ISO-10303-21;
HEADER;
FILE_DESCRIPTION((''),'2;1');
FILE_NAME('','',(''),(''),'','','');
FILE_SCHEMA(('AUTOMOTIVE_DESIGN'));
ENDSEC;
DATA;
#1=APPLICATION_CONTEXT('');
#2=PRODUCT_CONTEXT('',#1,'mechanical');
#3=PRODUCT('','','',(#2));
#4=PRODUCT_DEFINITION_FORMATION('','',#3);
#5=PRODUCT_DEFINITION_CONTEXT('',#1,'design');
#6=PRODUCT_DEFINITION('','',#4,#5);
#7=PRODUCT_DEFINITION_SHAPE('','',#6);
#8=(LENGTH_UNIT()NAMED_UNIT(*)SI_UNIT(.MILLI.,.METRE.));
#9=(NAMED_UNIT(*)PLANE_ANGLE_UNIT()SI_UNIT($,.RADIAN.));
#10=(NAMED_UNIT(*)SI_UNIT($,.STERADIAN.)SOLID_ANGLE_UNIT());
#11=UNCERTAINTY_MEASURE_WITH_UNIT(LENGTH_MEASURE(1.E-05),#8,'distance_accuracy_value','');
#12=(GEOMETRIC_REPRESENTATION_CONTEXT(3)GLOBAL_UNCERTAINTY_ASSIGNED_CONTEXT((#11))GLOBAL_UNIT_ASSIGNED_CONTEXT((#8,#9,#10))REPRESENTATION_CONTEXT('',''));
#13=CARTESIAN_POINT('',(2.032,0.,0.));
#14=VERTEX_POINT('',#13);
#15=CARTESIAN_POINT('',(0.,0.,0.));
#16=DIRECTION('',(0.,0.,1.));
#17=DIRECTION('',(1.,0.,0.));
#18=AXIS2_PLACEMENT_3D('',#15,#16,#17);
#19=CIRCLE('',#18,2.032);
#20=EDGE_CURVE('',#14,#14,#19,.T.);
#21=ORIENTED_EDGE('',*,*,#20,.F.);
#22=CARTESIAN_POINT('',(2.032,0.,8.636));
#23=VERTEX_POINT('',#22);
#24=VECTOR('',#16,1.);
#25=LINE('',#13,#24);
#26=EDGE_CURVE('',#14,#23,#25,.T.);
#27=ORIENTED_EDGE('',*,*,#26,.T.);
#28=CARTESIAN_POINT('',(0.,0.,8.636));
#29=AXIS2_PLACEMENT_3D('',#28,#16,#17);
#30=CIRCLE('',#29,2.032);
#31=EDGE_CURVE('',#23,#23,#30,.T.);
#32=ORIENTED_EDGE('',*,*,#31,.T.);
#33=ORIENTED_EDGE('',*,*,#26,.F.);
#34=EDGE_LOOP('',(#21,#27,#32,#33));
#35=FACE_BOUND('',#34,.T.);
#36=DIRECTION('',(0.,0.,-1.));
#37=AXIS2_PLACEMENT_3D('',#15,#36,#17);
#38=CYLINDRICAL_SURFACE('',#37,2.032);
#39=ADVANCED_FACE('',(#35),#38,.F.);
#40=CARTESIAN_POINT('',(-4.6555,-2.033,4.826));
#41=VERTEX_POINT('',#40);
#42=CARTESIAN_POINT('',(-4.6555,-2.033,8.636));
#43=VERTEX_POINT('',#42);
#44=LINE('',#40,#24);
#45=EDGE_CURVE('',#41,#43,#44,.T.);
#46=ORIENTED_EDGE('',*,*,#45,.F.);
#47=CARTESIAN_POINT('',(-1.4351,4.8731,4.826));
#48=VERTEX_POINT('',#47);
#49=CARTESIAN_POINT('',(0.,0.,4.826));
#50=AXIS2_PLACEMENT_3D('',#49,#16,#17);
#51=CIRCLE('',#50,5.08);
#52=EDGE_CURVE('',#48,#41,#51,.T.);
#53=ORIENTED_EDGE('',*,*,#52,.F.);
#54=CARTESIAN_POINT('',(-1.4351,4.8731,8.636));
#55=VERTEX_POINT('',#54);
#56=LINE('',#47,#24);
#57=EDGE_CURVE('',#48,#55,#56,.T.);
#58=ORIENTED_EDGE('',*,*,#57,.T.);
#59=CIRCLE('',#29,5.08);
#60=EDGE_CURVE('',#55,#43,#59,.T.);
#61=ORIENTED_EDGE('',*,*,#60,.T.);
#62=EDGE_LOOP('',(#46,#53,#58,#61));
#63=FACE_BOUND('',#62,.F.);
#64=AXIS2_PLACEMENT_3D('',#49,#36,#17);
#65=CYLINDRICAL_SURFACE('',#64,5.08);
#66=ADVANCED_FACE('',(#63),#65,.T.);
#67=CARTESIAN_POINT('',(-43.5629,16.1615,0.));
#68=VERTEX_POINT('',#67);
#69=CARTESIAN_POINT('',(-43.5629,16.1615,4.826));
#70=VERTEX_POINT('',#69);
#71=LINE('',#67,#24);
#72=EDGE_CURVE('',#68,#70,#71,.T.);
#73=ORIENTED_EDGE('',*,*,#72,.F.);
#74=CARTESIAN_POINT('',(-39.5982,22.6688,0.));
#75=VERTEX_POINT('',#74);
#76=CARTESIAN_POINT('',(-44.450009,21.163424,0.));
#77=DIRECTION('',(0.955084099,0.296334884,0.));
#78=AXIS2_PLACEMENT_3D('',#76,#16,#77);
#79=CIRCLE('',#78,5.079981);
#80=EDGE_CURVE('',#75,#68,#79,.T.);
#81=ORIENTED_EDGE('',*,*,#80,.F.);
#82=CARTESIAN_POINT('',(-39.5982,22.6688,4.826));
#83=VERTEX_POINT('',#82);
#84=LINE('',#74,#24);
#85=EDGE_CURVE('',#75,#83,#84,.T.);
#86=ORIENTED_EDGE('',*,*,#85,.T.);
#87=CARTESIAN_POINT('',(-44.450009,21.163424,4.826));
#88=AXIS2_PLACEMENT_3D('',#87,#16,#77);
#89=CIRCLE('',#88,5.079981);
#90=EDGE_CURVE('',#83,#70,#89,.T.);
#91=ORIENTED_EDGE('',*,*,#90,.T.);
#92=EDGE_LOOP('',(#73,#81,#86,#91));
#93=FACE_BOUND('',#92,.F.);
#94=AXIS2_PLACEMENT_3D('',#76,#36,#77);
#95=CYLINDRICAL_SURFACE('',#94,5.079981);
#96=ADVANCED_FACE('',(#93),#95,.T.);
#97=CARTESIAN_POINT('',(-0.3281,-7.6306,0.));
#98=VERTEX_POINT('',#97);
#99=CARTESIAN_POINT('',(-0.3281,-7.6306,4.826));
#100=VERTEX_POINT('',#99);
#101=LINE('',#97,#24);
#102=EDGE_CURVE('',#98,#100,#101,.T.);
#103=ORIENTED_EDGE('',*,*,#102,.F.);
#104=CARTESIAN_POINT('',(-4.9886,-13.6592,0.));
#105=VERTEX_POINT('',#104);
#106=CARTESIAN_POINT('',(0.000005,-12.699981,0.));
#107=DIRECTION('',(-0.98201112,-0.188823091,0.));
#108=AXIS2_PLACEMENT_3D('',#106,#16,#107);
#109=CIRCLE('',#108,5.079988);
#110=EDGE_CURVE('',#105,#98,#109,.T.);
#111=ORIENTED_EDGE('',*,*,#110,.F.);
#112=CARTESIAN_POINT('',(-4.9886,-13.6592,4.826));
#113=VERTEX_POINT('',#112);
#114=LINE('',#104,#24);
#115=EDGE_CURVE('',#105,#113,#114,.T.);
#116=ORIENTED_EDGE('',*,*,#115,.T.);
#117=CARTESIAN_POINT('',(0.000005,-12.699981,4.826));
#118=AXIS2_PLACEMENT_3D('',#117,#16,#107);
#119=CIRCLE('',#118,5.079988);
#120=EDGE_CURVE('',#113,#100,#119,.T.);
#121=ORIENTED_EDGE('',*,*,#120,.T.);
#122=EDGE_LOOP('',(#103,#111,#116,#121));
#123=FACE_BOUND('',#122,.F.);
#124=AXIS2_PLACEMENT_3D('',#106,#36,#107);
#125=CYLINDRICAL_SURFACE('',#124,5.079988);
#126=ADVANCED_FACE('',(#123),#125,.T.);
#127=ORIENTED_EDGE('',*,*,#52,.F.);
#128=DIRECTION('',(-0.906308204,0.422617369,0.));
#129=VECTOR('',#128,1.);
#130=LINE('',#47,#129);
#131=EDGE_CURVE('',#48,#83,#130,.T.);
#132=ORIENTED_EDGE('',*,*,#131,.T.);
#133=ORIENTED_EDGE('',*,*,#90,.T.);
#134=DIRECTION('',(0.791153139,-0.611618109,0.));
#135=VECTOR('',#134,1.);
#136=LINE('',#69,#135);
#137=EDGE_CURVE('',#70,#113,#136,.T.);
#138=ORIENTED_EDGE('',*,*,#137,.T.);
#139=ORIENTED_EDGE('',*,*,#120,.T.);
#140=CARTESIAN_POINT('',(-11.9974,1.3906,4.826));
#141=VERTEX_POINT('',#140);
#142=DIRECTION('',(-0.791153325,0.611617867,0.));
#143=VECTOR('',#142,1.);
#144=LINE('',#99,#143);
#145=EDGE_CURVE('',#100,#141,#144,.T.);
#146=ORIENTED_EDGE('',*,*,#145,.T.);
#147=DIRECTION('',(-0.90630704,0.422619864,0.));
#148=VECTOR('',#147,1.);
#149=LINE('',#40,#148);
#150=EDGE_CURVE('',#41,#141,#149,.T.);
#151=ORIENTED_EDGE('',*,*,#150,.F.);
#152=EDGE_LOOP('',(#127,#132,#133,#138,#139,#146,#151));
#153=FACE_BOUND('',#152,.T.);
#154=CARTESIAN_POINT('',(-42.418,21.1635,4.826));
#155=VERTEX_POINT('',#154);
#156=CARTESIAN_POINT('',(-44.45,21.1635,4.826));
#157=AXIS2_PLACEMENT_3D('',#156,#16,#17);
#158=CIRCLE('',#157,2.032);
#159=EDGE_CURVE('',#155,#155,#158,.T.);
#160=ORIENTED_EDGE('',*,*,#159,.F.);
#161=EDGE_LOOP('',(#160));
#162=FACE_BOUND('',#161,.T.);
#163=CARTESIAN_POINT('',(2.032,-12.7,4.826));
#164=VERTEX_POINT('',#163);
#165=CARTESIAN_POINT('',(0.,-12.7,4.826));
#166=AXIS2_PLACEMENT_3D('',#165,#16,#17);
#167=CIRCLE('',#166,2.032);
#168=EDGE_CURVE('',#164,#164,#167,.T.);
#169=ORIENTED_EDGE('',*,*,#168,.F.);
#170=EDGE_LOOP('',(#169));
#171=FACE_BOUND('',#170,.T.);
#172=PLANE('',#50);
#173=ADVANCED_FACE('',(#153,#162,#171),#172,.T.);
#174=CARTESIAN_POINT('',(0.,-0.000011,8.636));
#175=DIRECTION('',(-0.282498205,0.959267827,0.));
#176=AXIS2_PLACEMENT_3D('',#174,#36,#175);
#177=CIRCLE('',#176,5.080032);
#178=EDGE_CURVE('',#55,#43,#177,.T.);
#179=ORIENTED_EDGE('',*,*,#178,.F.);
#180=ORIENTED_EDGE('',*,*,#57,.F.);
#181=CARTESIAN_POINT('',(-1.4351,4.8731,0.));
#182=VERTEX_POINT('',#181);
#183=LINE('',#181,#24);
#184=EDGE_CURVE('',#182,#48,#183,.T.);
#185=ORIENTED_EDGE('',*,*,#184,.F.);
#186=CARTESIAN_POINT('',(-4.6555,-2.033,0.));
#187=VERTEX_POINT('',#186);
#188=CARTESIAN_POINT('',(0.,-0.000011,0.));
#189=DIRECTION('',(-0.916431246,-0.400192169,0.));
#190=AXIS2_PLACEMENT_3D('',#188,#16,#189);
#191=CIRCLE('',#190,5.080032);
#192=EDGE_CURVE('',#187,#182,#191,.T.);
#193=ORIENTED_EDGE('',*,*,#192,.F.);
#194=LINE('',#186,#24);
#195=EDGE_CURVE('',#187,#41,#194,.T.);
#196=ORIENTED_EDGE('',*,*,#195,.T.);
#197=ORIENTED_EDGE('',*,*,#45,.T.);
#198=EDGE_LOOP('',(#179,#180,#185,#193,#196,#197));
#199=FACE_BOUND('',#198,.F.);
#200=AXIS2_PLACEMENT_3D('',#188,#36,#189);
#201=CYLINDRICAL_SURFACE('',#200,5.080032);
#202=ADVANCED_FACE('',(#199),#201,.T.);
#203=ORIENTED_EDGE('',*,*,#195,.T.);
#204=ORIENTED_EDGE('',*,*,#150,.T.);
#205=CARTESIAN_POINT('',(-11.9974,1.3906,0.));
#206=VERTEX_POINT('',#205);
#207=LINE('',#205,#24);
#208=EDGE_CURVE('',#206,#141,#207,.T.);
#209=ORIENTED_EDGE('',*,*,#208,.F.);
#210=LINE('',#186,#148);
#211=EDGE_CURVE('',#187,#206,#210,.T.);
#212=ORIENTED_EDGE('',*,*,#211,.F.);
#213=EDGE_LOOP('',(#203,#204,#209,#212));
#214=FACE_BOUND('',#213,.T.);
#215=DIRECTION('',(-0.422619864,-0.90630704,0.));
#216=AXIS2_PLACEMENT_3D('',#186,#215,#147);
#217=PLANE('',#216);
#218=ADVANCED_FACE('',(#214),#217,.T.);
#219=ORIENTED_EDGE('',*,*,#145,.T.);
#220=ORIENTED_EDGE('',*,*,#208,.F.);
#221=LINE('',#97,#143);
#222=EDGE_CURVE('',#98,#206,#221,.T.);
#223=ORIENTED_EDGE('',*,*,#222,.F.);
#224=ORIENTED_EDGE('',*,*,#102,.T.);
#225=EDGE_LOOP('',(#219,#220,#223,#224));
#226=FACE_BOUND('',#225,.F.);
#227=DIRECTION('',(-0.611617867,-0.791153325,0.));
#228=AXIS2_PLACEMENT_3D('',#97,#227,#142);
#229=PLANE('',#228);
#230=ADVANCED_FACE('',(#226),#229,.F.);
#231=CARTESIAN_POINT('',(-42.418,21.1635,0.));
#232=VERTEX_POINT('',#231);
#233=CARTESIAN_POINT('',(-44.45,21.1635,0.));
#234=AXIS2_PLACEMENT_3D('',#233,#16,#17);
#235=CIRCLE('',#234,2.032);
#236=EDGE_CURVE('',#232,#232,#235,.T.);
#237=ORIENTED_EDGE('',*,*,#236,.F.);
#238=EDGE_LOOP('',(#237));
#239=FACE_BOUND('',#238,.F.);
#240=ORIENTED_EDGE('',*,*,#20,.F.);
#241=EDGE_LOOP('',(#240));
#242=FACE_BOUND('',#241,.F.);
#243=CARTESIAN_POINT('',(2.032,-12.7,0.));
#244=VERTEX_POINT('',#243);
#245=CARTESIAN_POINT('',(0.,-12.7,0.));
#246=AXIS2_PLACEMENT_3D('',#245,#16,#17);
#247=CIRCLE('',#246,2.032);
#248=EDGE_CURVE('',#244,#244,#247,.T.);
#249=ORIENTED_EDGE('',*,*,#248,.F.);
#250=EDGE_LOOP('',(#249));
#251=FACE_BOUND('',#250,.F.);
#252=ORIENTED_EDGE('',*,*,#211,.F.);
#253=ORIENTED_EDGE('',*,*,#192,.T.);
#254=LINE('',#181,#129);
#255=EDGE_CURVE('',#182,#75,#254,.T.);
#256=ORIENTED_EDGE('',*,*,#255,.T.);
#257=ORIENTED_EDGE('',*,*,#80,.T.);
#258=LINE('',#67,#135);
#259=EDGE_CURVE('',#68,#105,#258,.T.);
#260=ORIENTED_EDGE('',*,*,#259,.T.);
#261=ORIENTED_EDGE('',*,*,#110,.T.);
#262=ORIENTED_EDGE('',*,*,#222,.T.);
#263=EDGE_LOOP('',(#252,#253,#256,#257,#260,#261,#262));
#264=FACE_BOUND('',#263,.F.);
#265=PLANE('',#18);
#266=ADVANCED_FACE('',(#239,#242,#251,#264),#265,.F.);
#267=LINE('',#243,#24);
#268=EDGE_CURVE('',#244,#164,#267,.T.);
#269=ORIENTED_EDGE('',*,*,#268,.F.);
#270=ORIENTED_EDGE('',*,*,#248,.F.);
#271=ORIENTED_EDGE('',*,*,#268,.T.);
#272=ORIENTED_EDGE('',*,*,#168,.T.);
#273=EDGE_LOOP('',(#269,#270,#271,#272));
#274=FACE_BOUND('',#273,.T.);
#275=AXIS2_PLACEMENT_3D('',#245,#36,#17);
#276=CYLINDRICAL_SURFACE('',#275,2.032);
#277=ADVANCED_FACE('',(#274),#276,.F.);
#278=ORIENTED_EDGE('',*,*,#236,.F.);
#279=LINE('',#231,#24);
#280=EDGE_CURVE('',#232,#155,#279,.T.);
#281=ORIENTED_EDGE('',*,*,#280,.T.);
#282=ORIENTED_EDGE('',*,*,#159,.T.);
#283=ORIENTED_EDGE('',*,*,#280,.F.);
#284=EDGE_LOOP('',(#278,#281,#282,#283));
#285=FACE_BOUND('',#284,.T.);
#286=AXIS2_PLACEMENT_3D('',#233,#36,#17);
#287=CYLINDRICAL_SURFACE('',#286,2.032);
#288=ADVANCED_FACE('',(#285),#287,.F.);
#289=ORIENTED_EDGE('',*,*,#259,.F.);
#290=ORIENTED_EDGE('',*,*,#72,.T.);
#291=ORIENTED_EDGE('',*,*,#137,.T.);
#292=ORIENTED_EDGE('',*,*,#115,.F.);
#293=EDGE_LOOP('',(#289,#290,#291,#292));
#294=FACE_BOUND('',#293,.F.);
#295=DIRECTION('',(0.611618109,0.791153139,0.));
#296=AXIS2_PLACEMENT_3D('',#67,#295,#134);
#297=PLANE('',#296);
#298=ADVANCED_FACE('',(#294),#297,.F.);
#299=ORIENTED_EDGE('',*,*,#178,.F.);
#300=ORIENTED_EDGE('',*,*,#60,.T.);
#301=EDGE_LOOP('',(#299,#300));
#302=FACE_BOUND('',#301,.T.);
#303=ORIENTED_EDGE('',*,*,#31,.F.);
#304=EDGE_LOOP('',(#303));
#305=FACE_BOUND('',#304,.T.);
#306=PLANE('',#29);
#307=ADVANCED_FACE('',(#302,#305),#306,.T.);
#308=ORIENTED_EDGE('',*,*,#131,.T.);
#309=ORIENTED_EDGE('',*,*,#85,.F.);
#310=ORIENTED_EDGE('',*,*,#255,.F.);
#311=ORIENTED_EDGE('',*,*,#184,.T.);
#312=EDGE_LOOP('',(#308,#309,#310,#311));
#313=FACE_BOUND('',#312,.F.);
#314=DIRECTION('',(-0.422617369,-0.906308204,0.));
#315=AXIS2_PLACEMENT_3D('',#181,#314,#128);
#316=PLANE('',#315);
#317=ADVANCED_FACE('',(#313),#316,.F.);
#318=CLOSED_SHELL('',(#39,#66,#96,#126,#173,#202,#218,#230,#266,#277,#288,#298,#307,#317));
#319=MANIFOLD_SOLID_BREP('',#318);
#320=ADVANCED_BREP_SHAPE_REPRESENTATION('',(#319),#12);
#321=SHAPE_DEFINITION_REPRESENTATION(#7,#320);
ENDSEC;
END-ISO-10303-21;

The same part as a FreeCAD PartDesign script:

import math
import FreeCAD as App
import Part
import Sketcher

V = App.Vector
Q = App.Units.Quantity

doc = App.newDocument("Part")
params = doc.addObject("Spreadsheet::Sheet", "Params")
for row, (alias, value) in enumerate([
    ("sketch1_radius", "0.2 in"),
    ("sketch1_diameter", "0.16 in"),
    ("pad1_length", "0.19 in"),
    ("sketch2_radius", "0.2 in"),
    ("sketch2_diameter", "0.16 in"),
    ("pad2_length", "0.15 in"),
], start=1):
    params.set(f"A{row}", alias)
    params.set(f"B{row}", "=" + value)
    params.setAlias(f"B{row}", alias)

body = doc.addObject("PartDesign::Body", "Body")

# Sketch on XY plane
sketch1 = body.newObject("Sketcher::SketchObject", "Sketch")
sketch1.AttachmentSupport = (doc.getObject("XY_Plane"), [""])
sketch1.MapMode = "FlatFace"
sketch1.addGeometry(Part.LineSegment(V(-12, 1.4, 0), V(-4.7, -2, 0)), False)
sketch1.addGeometry(Part.ArcOfCircle(Part.Circle(V(0, 0, 0), V(0, 0, 1), 5.1), math.radians(-156), math.radians(106)), False)
sketch1.addGeometry(Part.LineSegment(V(-1.4, 4.9, 0), V(-39.6, 22.7, 0)), False)
sketch1.addGeometry(Part.ArcOfCircle(Part.Circle(V(-44.5, 21.2, 0), V(0, 0, 1), 5.1), math.radians(17), math.radians(280)), False)
sketch1.addGeometry(Part.LineSegment(V(-43.6, 16.2, 0), V(-5, -13.7, 0)), False)
sketch1.addGeometry(Part.ArcOfCircle(Part.Circle(V(0, -12.7, 0), V(0, 0, 1), 5.1), math.radians(-169), math.radians(94)), False)
sketch1.addGeometry(Part.LineSegment(V(-0.3, -7.6, 0), V(-12, 1.4, 0)), False)
sketch1.addGeometry(Part.Circle(V(0, -12.7, 0), V(0, 0, 1), 2), False)
sketch1.addGeometry(Part.Circle(V(0, 0, 0), V(0, 0, 1), 2), False)
sketch1.addGeometry(Part.Circle(V(-44.5, 21.2, 0), V(0, 0, 1), 2), False)
sketch1.addConstraint(Sketcher.Constraint("Coincident", 0, 2, 1, 1))
sketch1.addConstraint(Sketcher.Constraint("Coincident", 1, 2, 2, 1))
sketch1.addConstraint(Sketcher.Constraint("Coincident", 2, 2, 3, 1))
sketch1.addConstraint(Sketcher.Constraint("Coincident", 3, 2, 4, 1))
sketch1.addConstraint(Sketcher.Constraint("Coincident", 4, 2, 5, 1))
sketch1.addConstraint(Sketcher.Constraint("Coincident", 5, 2, 6, 1))
sketch1.addConstraint(Sketcher.Constraint("Coincident", 6, 2, 0, 1))
sketch1.addConstraint(Sketcher.Constraint("Coincident", 1, 3, -1, 1))
sketch1.addConstraint(Sketcher.Constraint("Coincident", 8, 3, -1, 1))
sketch1.addConstraint(Sketcher.Constraint("Coincident", 7, 3, 5, 3))
sketch1.addConstraint(Sketcher.Constraint("Coincident", 9, 3, 3, 3))
sketch1.addConstraint(Sketcher.Constraint("Equal", 1, 3))
sketch1.addConstraint(Sketcher.Constraint("Equal", 3, 5))
sketch1.addConstraint(Sketcher.Constraint("Equal", 7, 8))
sketch1.addConstraint(Sketcher.Constraint("Equal", 8, 9))
sketch1.addConstraint(Sketcher.Constraint("PointOnObject", 5, 3, -2))
sketch1.addConstraint(Sketcher.Constraint("Parallel", 0, 2))
sketch1.addConstraint(Sketcher.Constraint("Parallel", 4, 6))
sketch1.addConstraint(Sketcher.Constraint("Radius", 1, Q("0.2 in")))
sketch1.addConstraint(Sketcher.Constraint("Diameter", 7, Q("0.16 in")))
sketch1.addConstraint(Sketcher.Constraint("Angle", 0, Q("-25 deg")))
sketch1.addConstraint(Sketcher.Constraint("DistanceY", 5, 3, -1, 1, Q("0.5 in")))
sketch1.addConstraint(Sketcher.Constraint("DistanceX", 3, 3, -1, 1, Q("1.75 in")))
sketch1.addConstraint(Sketcher.Constraint("Distance", 2, Q("1.6578 in")))
sketch1.addConstraint(Sketcher.Constraint("Distance", 6, Q("0.5807 in")))
sketch1.addConstraint(Sketcher.Constraint("DistanceY", -1, 1, 3, 3, Q("0.8332 in")))
sketch1.addConstraint(Sketcher.Constraint("DistanceX", 4, 2, -1, 1, Q("0.1964 in")))
sketch1.addConstraint(Sketcher.Constraint("DistanceY", 0, 2, 1, 2, Q("0.2719 in")))
sketch1.addConstraint(Sketcher.Constraint("DistanceX", 3, 2, 2, 2, Q("0.1561 in")))
sketch1.setExpression("Constraints[18]", "Params.sketch1_radius")
sketch1.setExpression("Constraints[19]", "Params.sketch1_diameter")
pad1 = body.newObject("PartDesign::Pad", "Pad")
pad1.Profile = sketch1
pad1.setExpression("Length", "Params.pad1_length")

# Sketch on XY plane
sketch2 = body.newObject("Sketcher::SketchObject", "Sketch001")
sketch2.AttachmentSupport = (doc.getObject("XY_Plane"), [""])
sketch2.MapMode = "FlatFace"
sketch2.AttachmentOffset = App.Placement(V(0, 0, 0.19 * 25.4), App.Rotation())
sketch2.addGeometry(Part.ArcOfCircle(Part.Circle(V(0, 0, 0), V(0, 0, 1), 5.1), math.radians(106), math.radians(204)), False)
sketch2.addGeometry(Part.ArcOfCircle(Part.Circle(V(0, 0, 0), V(0, 0, 1), 5.1), math.radians(-156), math.radians(106)), False)
sketch2.addGeometry(Part.Circle(V(0, 0, 0), V(0, 0, 1), 2), False)
sketch2.addConstraint(Sketcher.Constraint("Tangent", 0, 1, 1, 2))
sketch2.addConstraint(Sketcher.Constraint("Coincident", 1, 1, 0, 2))
sketch2.addConstraint(Sketcher.Constraint("Coincident", 0, 3, -1, 1))
sketch2.addConstraint(Sketcher.Constraint("Coincident", 2, 3, -1, 1))
sketch2.addConstraint(Sketcher.Constraint("Radius", 0, Q("0.2 in")))
sketch2.addConstraint(Sketcher.Constraint("Diameter", 2, Q("0.16 in")))
sketch2.addConstraint(Sketcher.Constraint("DistanceX", 0, 1, -1, 1, Q("0.0565 in")))
sketch2.addConstraint(Sketcher.Constraint("DistanceY", 1, 1, 0, 1, Q("0.2719 in")))
sketch2.setExpression("Constraints[4]", "Params.sketch2_radius")
sketch2.setExpression("Constraints[5]", "Params.sketch2_diameter")
pad2 = body.newObject("PartDesign::Pad", "Pad001")
pad2.Profile = sketch2
pad2.setExpression("Length", "Params.pad2_length")

doc.recompute()
